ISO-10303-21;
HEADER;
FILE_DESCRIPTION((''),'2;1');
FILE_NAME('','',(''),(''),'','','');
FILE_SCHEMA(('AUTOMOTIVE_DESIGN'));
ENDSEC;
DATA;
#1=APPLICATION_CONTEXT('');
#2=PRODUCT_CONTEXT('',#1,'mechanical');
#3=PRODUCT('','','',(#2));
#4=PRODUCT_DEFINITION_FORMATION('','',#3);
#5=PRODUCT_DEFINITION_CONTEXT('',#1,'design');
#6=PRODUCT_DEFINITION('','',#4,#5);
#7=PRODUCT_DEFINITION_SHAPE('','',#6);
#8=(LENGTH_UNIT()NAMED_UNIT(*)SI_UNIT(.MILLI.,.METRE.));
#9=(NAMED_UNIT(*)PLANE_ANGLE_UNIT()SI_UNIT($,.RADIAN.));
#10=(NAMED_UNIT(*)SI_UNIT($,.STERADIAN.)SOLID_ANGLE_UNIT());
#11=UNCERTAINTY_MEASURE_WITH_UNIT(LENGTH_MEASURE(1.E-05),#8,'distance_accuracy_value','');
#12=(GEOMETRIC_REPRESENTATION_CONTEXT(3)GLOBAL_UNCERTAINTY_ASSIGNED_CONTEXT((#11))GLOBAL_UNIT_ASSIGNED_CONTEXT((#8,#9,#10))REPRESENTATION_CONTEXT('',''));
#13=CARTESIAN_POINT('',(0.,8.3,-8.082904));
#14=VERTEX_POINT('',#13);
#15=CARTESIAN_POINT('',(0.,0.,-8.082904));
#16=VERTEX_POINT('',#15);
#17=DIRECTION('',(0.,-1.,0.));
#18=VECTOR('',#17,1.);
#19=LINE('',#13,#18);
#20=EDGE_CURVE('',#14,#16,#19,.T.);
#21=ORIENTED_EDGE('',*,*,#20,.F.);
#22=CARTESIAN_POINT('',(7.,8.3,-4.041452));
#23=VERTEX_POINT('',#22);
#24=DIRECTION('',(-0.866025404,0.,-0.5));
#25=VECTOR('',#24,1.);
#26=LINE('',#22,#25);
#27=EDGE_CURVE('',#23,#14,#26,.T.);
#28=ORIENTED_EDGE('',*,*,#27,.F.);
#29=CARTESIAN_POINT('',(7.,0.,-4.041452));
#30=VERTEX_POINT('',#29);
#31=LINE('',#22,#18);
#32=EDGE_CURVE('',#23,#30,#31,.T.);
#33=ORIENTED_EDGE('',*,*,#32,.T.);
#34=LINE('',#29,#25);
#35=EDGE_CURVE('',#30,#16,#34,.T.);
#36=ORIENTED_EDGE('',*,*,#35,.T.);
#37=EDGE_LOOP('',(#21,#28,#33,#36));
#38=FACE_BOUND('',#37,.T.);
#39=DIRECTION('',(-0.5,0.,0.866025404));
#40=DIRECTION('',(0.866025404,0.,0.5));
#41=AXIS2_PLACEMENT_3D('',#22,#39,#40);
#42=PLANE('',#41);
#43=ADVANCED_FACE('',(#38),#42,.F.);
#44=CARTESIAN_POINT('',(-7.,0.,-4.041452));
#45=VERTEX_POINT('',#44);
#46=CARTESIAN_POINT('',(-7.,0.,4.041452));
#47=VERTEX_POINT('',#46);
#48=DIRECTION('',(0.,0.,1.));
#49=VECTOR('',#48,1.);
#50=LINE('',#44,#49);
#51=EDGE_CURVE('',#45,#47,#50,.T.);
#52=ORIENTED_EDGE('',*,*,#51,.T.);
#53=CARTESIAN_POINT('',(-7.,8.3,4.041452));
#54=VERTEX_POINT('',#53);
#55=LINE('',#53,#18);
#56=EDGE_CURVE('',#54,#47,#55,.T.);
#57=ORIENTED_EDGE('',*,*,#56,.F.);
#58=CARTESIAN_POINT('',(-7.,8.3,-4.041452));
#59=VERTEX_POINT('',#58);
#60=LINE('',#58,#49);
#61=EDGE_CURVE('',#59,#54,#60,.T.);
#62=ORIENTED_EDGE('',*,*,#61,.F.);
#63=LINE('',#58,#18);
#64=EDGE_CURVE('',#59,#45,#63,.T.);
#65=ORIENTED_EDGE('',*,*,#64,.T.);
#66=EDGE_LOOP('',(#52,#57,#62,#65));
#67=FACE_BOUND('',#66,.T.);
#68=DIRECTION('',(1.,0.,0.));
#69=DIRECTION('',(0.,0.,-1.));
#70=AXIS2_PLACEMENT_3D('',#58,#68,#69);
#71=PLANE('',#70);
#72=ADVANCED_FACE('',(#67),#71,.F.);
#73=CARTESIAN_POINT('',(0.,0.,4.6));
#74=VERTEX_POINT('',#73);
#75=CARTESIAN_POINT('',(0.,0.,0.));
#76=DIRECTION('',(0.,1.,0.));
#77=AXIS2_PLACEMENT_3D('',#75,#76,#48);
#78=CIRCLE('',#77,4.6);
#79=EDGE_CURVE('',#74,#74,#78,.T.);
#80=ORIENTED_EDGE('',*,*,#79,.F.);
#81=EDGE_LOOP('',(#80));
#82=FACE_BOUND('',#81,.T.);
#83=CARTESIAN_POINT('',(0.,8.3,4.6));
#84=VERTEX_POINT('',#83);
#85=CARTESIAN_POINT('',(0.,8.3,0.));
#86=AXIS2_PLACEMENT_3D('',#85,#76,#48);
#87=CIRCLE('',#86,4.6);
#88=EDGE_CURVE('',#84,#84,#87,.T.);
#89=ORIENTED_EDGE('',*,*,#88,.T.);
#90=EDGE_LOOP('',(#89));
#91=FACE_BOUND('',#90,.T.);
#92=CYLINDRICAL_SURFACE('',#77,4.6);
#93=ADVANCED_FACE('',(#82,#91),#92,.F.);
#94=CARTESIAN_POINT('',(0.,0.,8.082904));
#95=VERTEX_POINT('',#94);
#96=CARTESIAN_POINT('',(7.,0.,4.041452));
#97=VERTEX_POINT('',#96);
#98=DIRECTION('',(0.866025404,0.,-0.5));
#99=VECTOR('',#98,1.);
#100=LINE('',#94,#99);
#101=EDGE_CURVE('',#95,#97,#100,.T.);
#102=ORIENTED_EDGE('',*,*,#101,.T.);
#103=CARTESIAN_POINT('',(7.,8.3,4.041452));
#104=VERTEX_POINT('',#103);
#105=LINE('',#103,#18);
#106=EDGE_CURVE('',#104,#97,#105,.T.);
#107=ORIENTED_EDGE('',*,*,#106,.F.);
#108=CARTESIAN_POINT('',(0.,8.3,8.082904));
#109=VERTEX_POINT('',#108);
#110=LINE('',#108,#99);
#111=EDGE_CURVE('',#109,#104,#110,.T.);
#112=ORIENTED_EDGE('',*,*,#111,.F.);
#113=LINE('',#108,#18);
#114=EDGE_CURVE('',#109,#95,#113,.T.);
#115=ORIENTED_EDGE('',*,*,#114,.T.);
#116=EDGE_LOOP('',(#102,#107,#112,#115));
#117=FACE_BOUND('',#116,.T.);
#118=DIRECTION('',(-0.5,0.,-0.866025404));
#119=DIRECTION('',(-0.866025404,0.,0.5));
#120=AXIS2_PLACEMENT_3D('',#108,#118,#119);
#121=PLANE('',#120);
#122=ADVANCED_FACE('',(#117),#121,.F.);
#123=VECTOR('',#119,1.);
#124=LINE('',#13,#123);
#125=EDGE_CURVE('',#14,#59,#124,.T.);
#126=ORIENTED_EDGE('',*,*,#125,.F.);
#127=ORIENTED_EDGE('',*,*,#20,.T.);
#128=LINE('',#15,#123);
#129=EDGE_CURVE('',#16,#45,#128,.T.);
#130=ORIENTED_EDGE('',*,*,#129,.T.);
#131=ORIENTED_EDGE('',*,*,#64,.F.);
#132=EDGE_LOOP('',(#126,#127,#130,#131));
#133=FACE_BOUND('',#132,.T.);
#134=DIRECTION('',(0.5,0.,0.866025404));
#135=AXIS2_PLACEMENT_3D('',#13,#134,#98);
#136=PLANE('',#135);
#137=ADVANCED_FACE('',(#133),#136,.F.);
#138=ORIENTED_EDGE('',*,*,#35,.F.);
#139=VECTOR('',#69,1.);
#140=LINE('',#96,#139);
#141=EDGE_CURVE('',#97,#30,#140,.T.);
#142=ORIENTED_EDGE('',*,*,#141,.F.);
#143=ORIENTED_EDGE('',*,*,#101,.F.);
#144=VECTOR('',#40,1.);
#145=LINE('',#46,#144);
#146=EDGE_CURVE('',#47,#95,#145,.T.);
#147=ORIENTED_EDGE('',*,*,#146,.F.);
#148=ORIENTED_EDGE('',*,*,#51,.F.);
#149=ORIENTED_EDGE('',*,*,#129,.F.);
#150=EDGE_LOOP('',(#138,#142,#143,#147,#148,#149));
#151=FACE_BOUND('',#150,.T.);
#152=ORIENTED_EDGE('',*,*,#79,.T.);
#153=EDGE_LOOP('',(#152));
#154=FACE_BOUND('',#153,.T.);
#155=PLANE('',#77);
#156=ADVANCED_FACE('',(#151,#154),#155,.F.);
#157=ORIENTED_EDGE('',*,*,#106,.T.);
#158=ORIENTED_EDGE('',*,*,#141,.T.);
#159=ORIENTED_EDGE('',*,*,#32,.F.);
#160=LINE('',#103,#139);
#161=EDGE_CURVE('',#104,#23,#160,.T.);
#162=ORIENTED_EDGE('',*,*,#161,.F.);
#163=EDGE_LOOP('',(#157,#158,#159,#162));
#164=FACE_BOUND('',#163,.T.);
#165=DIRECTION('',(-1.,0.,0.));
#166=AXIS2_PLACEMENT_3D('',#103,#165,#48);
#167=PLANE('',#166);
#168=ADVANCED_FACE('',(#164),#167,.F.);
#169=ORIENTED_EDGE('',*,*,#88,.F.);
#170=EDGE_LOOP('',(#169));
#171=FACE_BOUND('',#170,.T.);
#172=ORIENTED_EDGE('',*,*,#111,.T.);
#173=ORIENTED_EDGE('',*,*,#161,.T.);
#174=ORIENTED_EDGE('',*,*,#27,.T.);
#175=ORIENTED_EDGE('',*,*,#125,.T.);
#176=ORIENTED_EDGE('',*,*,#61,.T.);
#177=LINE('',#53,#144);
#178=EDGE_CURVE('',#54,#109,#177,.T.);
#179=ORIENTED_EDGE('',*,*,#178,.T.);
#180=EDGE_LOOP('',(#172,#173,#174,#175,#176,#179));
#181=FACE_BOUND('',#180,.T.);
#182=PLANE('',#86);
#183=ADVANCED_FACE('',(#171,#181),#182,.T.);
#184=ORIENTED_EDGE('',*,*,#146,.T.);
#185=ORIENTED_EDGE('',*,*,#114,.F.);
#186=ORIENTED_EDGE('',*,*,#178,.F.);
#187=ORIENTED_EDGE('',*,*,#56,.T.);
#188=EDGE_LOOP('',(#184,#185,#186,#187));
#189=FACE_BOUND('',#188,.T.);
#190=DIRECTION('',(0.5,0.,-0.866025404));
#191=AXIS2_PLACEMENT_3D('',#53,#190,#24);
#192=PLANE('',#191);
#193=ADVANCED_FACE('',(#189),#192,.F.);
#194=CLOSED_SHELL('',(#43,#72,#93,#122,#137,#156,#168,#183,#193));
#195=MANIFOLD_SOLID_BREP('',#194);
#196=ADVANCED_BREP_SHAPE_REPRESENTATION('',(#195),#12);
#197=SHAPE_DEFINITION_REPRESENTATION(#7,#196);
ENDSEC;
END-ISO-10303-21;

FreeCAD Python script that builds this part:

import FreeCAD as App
import Part
import Sketcher
Q = App.Units.Quantity

doc = App.newDocument("Part")
body = doc.addObject("PartDesign::Body", "Body")

sketch1 = body.newObject("Sketcher::SketchObject", "Sketch")
sketch1.AttachmentSupport = (doc.getObject("XZ_Plane"), [""])
sketch1.MapMode = "FlatFace"
sketch1.addGeometry([
    Part.LineSegment(App.Vector(0, -8, 0), App.Vector(-7, -4, 0)),
    Part.LineSegment(App.Vector(-7, -4, 0), App.Vector(-7, 4, 0)),
    Part.LineSegment(App.Vector(-7, 4, 0), App.Vector(0, 8, 0)),
    Part.LineSegment(App.Vector(0, 8, 0), App.Vector(7, 4, 0)),
    Part.LineSegment(App.Vector(7, 4, 0), App.Vector(7, -4, 0)),
    Part.LineSegment(App.Vector(7, -4, 0), App.Vector(0, -8, 0)),
], False)
sketch1.addConstraint([
    Sketcher.Constraint("Coincident", 0, 2, 1, 1),
    Sketcher.Constraint("Coincident", 1, 2, 2, 1),
    Sketcher.Constraint("Coincident", 2, 2, 3, 1),
    Sketcher.Constraint("Coincident", 3, 2, 4, 1),
    Sketcher.Constraint("Coincident", 4, 2, 5, 1),
    Sketcher.Constraint("Coincident", 5, 2, 0, 1),
    Sketcher.Constraint("Vertical", 1),
    Sketcher.Constraint("Vertical", 4),
    Sketcher.Constraint("Symmetric", 0, 2, 3, 2, -1, 1),
    Sketcher.Constraint("Symmetric", 2, 2, 5, 2, -1, 1),
    Sketcher.Constraint("PointOnObject", 2, 2, -2),
    Sketcher.Constraint("Parallel", 2, 5),
    Sketcher.Constraint("Horizontal", 1, 2, 3, 2),
    Sketcher.Constraint("Angle", 0, Q("150 deg")),
    Sketcher.Constraint("DistanceX", 0, 2, -1, 1, Q("7 mm")),
    Sketcher.Constraint("DistanceY", 1, 1, 1, 2, Q("8.082904 mm")),
])
pad1 = body.newObject("PartDesign::Pad", "Pad")
pad1.Profile = sketch1
pad1.Length = 8.3
pad1.Reversed = True

sketch2 = body.newObject("Sketcher::SketchObject", "Sketch001")
sketch2.AttachmentSupport = (doc.getObject("XZ_Plane"), [""])
sketch2.MapMode = "FlatFace"
sketch2.AttachmentOffset = App.Placement(App.Vector(0, 0, -8.3), App.Rotation())
sketch2.addGeometry(Part.Circle(App.Vector(0, 0, 0), App.Vector(0, 0, 1), 4.6), False)
sketch2.addConstraint([
    Sketcher.Constraint("Coincident", 0, 3, -1, 1),
    Sketcher.Constraint("Diameter", 0, Q("9.2 mm")),
])
pocket1 = body.newObject("PartDesign::Pocket", "Pocket")
pocket1.Profile = sketch2
pocket1.Type = "ThroughAll"
pocket1.Reversed = True

doc.recompute()
